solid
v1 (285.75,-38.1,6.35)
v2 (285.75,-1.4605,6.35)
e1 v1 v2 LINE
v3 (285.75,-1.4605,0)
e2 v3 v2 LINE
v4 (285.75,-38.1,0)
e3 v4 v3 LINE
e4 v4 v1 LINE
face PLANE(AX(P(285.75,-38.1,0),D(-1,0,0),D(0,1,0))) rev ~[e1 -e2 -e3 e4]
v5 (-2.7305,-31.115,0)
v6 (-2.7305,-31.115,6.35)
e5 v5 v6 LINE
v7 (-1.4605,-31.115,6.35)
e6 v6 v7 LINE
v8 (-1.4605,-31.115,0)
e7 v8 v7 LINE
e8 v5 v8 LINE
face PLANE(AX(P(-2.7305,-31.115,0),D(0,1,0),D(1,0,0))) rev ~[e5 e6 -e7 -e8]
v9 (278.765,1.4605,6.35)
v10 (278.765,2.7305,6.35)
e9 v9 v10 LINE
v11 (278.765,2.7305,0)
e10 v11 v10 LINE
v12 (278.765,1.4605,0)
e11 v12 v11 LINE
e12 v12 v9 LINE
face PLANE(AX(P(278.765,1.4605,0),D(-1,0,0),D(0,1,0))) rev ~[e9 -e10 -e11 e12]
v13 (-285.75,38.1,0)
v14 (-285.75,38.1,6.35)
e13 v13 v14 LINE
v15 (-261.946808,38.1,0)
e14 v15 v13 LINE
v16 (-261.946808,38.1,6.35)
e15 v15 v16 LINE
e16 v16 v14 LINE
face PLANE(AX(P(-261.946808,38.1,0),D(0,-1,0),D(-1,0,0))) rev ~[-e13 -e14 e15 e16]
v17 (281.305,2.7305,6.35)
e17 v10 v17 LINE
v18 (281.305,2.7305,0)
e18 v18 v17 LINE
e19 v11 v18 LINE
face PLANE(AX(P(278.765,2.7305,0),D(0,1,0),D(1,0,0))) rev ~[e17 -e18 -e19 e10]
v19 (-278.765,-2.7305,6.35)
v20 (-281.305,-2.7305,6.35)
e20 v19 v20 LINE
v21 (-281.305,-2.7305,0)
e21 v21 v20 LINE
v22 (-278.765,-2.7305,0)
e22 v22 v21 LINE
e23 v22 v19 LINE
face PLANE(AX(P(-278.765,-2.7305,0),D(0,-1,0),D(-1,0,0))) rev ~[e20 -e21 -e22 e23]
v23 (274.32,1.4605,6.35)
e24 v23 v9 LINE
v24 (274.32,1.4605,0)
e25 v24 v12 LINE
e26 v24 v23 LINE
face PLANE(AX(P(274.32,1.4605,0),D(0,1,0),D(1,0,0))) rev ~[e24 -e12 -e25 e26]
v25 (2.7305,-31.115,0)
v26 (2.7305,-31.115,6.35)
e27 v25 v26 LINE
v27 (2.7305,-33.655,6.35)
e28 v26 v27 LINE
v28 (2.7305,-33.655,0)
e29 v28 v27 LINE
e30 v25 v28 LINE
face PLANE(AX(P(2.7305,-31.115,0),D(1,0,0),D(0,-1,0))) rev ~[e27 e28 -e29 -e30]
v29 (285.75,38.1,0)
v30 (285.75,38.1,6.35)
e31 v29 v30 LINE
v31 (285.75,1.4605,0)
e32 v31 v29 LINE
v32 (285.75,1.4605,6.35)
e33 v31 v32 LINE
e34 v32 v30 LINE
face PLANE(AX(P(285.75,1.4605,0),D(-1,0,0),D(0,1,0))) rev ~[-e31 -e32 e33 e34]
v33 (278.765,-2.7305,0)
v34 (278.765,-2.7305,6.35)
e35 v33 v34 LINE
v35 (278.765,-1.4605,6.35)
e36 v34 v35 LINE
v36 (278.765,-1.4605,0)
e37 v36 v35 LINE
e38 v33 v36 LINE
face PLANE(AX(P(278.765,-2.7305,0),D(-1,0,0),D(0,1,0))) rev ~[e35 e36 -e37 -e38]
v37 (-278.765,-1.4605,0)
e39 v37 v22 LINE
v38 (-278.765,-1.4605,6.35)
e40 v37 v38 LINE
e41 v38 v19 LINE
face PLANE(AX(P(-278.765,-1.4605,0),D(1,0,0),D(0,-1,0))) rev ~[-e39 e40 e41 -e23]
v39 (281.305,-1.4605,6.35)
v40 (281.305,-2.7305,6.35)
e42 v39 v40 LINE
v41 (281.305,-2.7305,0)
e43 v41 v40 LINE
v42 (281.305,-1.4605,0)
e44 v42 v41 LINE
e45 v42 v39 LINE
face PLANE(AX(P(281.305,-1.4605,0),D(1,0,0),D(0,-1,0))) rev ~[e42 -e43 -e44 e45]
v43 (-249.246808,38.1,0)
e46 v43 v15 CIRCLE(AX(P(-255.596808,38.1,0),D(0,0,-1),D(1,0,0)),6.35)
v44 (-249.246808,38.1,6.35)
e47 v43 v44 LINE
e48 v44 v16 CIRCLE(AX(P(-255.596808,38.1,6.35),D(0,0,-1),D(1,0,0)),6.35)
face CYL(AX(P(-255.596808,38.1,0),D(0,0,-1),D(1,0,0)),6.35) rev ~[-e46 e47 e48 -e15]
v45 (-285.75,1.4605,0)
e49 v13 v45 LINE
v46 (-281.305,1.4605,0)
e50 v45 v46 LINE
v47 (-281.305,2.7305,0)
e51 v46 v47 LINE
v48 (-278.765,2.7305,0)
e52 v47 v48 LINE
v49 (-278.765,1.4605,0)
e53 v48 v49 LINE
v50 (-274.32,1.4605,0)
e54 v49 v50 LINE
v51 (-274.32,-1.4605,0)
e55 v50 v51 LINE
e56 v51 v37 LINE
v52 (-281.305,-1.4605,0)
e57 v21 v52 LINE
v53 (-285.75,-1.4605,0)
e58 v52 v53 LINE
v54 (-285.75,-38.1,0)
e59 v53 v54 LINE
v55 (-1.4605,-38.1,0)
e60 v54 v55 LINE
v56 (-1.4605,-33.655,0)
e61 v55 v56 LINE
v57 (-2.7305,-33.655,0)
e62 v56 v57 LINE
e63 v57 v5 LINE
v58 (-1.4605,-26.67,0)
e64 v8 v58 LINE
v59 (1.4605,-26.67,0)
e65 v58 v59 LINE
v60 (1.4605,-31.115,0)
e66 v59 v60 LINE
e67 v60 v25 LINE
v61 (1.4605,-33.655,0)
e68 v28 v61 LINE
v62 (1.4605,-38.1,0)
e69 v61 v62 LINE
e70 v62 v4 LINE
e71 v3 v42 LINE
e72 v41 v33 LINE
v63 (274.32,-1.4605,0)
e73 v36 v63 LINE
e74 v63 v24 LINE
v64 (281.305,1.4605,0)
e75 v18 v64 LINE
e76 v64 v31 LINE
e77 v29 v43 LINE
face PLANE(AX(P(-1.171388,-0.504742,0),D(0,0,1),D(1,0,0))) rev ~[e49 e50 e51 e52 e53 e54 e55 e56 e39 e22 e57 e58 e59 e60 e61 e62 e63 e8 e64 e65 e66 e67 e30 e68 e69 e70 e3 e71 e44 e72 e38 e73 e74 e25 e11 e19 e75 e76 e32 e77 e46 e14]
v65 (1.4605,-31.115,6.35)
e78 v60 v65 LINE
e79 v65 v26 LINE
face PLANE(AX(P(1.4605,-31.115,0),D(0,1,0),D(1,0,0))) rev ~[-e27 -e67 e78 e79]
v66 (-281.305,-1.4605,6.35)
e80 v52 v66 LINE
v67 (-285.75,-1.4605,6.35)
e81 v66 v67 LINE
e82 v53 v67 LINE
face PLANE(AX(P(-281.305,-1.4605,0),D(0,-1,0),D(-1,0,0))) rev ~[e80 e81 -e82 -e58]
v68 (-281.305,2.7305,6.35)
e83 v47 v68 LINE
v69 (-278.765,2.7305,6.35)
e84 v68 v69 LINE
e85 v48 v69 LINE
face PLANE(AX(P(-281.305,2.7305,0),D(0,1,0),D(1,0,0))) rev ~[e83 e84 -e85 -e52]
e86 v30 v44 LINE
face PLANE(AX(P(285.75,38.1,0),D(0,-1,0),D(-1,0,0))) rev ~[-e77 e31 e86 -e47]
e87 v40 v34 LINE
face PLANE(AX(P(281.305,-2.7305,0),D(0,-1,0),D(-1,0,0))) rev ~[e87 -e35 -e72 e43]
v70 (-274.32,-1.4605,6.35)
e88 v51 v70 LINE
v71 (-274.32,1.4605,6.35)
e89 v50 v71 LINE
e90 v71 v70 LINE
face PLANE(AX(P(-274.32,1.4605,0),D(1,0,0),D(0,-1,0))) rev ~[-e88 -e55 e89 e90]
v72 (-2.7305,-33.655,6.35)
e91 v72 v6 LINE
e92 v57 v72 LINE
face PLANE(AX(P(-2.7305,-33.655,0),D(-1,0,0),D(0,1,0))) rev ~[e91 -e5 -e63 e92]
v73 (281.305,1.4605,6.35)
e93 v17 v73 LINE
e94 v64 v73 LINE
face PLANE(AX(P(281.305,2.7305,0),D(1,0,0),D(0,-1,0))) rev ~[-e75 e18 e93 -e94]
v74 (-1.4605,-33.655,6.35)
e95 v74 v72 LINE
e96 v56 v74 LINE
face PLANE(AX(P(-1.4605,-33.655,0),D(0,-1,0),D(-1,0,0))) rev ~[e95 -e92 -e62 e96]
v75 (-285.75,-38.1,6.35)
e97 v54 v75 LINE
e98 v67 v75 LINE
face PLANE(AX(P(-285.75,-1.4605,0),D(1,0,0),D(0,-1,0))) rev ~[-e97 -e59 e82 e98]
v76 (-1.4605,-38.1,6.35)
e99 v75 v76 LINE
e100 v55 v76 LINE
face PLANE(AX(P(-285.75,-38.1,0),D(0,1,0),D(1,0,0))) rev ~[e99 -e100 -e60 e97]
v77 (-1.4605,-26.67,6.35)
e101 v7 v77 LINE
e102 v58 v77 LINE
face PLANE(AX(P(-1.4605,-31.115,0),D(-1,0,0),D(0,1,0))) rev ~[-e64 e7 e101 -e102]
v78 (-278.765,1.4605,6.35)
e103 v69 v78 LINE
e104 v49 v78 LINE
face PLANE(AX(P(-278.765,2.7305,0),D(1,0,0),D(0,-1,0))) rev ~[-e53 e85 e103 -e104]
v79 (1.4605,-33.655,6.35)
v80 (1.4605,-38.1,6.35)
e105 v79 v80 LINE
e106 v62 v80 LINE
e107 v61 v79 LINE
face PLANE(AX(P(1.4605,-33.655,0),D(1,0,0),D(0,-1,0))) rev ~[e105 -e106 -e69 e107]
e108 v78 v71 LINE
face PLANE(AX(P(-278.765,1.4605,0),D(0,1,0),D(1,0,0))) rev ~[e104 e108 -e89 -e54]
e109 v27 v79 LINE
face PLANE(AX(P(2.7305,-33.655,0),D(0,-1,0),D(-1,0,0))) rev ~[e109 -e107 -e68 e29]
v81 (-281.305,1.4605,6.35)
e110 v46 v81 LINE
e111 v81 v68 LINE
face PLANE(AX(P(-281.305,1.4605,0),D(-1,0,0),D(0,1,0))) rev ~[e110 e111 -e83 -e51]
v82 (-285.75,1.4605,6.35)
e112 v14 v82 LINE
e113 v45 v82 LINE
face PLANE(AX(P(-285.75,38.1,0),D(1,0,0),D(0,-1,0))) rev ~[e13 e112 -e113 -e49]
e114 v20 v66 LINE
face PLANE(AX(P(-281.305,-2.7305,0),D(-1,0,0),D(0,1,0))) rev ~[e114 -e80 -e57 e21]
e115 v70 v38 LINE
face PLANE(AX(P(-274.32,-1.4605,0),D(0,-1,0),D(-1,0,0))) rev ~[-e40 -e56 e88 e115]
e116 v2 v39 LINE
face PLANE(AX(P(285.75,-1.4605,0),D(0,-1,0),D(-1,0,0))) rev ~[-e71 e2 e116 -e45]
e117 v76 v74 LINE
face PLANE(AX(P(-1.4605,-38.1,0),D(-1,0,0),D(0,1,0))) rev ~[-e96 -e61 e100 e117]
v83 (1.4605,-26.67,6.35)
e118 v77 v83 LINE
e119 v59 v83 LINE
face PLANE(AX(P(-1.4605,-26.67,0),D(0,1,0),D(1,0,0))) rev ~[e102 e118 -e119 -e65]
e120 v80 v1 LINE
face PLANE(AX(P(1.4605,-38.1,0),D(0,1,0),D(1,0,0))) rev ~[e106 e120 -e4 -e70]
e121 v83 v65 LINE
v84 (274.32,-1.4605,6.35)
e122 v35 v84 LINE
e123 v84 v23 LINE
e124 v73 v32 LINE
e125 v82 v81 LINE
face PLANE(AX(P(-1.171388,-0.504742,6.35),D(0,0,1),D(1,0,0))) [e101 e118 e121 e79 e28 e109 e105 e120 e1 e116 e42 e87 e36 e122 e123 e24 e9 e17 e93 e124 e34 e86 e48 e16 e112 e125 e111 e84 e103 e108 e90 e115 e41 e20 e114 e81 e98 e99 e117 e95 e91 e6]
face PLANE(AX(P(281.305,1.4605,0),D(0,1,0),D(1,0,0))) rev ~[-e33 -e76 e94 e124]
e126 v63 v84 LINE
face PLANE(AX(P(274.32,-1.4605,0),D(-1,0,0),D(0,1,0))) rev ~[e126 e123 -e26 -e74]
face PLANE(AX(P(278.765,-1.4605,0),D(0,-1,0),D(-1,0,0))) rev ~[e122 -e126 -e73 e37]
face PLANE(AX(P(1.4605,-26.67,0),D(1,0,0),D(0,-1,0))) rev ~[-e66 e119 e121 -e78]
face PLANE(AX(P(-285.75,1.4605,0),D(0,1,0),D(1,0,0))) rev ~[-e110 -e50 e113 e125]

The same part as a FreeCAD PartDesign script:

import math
import FreeCAD as App
import Part
import Sketcher

V = App.Vector
Q = App.Units.Quantity

doc = App.newDocument("Part")
body = doc.addObject("PartDesign::Body", "Body")

# Sketch on XY plane
sketch1 = body.newObject("Sketcher::SketchObject", "Sketch")
sketch1.AttachmentSupport = (doc.getObject("XY_Plane"), [""])
sketch1.MapMode = "FlatFace"
sketch1.addGeometry([
    Part.LineSegment(V(1.4605, -38.1, 0), V(285.75, -38.1, 0)),  # 0
    Part.LineSegment(V(285.75, -38.1, 0), V(285.75, -1.4605, 0)),  # 1
    Part.LineSegment(V(285.75, -1.4605, 0), V(281.305, -1.4605, 0)),  # 2
    Part.LineSegment(V(281.305, -1.4605, 0), V(281.305, -2.7305, 0)),  # 3
    Part.LineSegment(V(281.305, -2.7305, 0), V(278.765, -2.7305, 0)),  # 4
    Part.LineSegment(V(278.765, -2.7305, 0), V(278.765, -1.4605, 0)),  # 5
    Part.LineSegment(V(278.765, -1.4605, 0), V(274.32, -1.4605, 0)),  # 6
    Part.LineSegment(V(274.32, -1.4605, 0), V(274.32, 1.4605, 0)),  # 7
    Part.LineSegment(V(274.32, 1.4605, 0), V(278.765, 1.4605, 0)),  # 8
    Part.LineSegment(V(278.765, 1.4605, 0), V(278.765, 2.7305, 0)),  # 9
    Part.LineSegment(V(278.765, 2.7305, 0), V(281.305, 2.7305, 0)),  # 10
    Part.LineSegment(V(281.305, 2.7305, 0), V(281.305, 1.4605, 0)),  # 11
    Part.LineSegment(V(281.305, 1.4605, 0), V(285.75, 1.4605, 0)),  # 12
    Part.LineSegment(V(285.75, 1.4605, 0), V(285.75, 38.1, 0)),  # 13
    Part.LineSegment(V(285.75, 38.1, 0), V(-249.246808, 38.1, 0)),  # 14
    Part.ArcOfCircle(Part.Circle(V(-255.596808, 38.1, 0), V(0, 0, 1), 6.35), math.radians(180), math.radians(360)),  # 15
    Part.LineSegment(V(-261.946808, 38.1, 0), V(-285.75, 38.1, 0)),  # 16
    Part.LineSegment(V(-285.75, 38.1, 0), V(-285.75, 1.4605, 0)),  # 17
    Part.LineSegment(V(-285.75, 1.4605, 0), V(-281.305, 1.4605, 0)),  # 18
    Part.LineSegment(V(-281.305, 1.4605, 0), V(-281.305, 2.7305, 0)),  # 19
    Part.LineSegment(V(-281.305, 2.7305, 0), V(-278.765, 2.7305, 0)),  # 20
    Part.LineSegment(V(-278.765, 2.7305, 0), V(-278.765, 1.4605, 0)),  # 21
    Part.LineSegment(V(-278.765, 1.4605, 0), V(-274.32, 1.4605, 0)),  # 22
    Part.LineSegment(V(-274.32, 1.4605, 0), V(-274.32, -1.4605, 0)),  # 23
    Part.LineSegment(V(-274.32, -1.4605, 0), V(-278.765, -1.4605, 0)),  # 24
    Part.LineSegment(V(-278.765, -1.4605, 0), V(-278.765, -2.7305, 0)),  # 25
    Part.LineSegment(V(-278.765, -2.7305, 0), V(-281.305, -2.7305, 0)),  # 26
    Part.LineSegment(V(-281.305, -2.7305, 0), V(-281.305, -1.4605, 0)),  # 27
    Part.LineSegment(V(-281.305, -1.4605, 0), V(-285.75, -1.4605, 0)),  # 28
    Part.LineSegment(V(-285.75, -1.4605, 0), V(-285.75, -38.1, 0)),  # 29
    Part.LineSegment(V(-285.75, -38.1, 0), V(-1.4605, -38.1, 0)),  # 30
    Part.LineSegment(V(-1.4605, -38.1, 0), V(-1.4605, -33.655, 0)),  # 31
    Part.LineSegment(V(-1.4605, -33.655, 0), V(-2.7305, -33.655, 0)),  # 32
    Part.LineSegment(V(-2.7305, -33.655, 0), V(-2.7305, -31.115, 0)),  # 33
    Part.LineSegment(V(-2.7305, -31.115, 0), V(-1.4605, -31.115, 0)),  # 34
    Part.LineSegment(V(-1.4605, -31.115, 0), V(-1.4605, -26.67, 0)),  # 35
    Part.LineSegment(V(-1.4605, -26.67, 0), V(1.4605, -26.67, 0)),  # 36
    Part.LineSegment(V(1.4605, -26.67, 0), V(1.4605, -31.115, 0)),  # 37
    Part.LineSegment(V(1.4605, -31.115, 0), V(2.7305, -31.115, 0)),  # 38
    Part.LineSegment(V(2.7305, -31.115, 0), V(2.7305, -33.655, 0)),  # 39
    Part.LineSegment(V(2.7305, -33.655, 0), V(1.4605, -33.655, 0)),  # 40
    Part.LineSegment(V(1.4605, -33.655, 0), V(1.4605, -38.1, 0)),  # 41
], False)
sketch1.addConstraint([
    Sketcher.Constraint("Coincident", 0, 2, 1, 1),
    Sketcher.Constraint("Coincident", 1, 2, 2, 1),
    Sketcher.Constraint("Coincident", 2, 2, 3, 1),
    Sketcher.Constraint("Coincident", 3, 2, 4, 1),
    Sketcher.Constraint("Coincident", 4, 2, 5, 1),
    Sketcher.Constraint("Coincident", 5, 2, 6, 1),
    Sketcher.Constraint("Coincident", 6, 2, 7, 1),
    Sketcher.Constraint("Coincident", 7, 2, 8, 1),
    Sketcher.Constraint("Coincident", 8, 2, 9, 1),
    Sketcher.Constraint("Coincident", 9, 2, 10, 1),
    Sketcher.Constraint("Coincident", 10, 2, 11, 1),
    Sketcher.Constraint("Coincident", 11, 2, 12, 1),
    Sketcher.Constraint("Coincident", 12, 2, 13, 1),
    Sketcher.Constraint("Coincident", 13, 2, 14, 1),
    Sketcher.Constraint("Coincident", 14, 2, 15, 2),
    Sketcher.Constraint("Coincident", 15, 1, 16, 1),
    Sketcher.Constraint("Coincident", 16, 2, 17, 1),
    Sketcher.Constraint("Coincident", 17, 2, 18, 1),
    Sketcher.Constraint("Coincident", 18, 2, 19, 1),
    Sketcher.Constraint("Coincident", 19, 2, 20, 1),
    Sketcher.Constraint("Coincident", 20, 2, 21, 1),
    Sketcher.Constraint("Coincident", 21, 2, 22, 1),
    Sketcher.Constraint("Coincident", 22, 2, 23, 1),
    Sketcher.Constraint("Coincident", 23, 2, 24, 1),
    Sketcher.Constraint("Coincident", 24, 2, 25, 1),
    Sketcher.Constraint("Coincident", 25, 2, 26, 1),
    Sketcher.Constraint("Coincident", 26, 2, 27, 1),
    Sketcher.Constraint("Coincident", 27, 2, 28, 1),
    Sketcher.Constraint("Coincident", 28, 2, 29, 1),
    Sketcher.Constraint("Coincident", 29, 2, 30, 1),
    Sketcher.Constraint("Coincident", 30, 2, 31, 1),
    Sketcher.Constraint("Coincident", 31, 2, 32, 1),
    Sketcher.Constraint("Coincident", 32, 2, 33, 1),
    Sketcher.Constraint("Coincident", 33, 2, 34, 1),
    Sketcher.Constraint("Coincident", 34, 2, 35, 1),
    Sketcher.Constraint("Coincident", 35, 2, 36, 1),
    Sketcher.Constraint("Coincident", 36, 2, 37, 1),
    Sketcher.Constraint("Coincident", 37, 2, 38, 1),
    Sketcher.Constraint("Coincident", 38, 2, 39, 1),
    Sketcher.Constraint("Coincident", 39, 2, 40, 1),
    Sketcher.Constraint("Coincident", 40, 2, 41, 1),
    Sketcher.Constraint("Coincident", 41, 2, 0, 1),
    Sketcher.Constraint("Horizontal", 0),
    Sketcher.Constraint("Vertical", 1),
    Sketcher.Constraint("Horizontal", 2),
    Sketcher.Constraint("Vertical", 3),
    Sketcher.Constraint("Horizontal", 4),
    Sketcher.Constraint("Vertical", 5),
    Sketcher.Constraint("Horizontal", 6),
    Sketcher.Constraint("Vertical", 7),
    Sketcher.Constraint("Horizontal", 8),
    Sketcher.Constraint("Vertical", 9),
    Sketcher.Constraint("Horizontal", 10),
    Sketcher.Constraint("Vertical", 11),
    Sketcher.Constraint("Horizontal", 12),
    Sketcher.Constraint("Vertical", 13),
    Sketcher.Constraint("Horizontal", 14),
    Sketcher.Constraint("Horizontal", 16),
    Sketcher.Constraint("Vertical", 17),
    Sketcher.Constraint("Horizontal", 18),
    Sketcher.Constraint("Vertical", 19),
    Sketcher.Constraint("Horizontal", 20),
    Sketcher.Constraint("Vertical", 21),
    Sketcher.Constraint("Horizontal", 22),
    Sketcher.Constraint("Vertical", 23),
    Sketcher.Constraint("Horizontal", 24),
    Sketcher.Constraint("Vertical", 25),
    Sketcher.Constraint("Horizontal", 26),
    Sketcher.Constraint("Vertical", 27),
    Sketcher.Constraint("Horizontal", 28),
    Sketcher.Constraint("Vertical", 29),
    Sketcher.Constraint("Horizontal", 30),
    Sketcher.Constraint("Vertical", 31),
    Sketcher.Constraint("Horizontal", 32),
    Sketcher.Constraint("Vertical", 33),
    Sketcher.Constraint("Horizontal", 34),
    Sketcher.Constraint("Vertical", 35),
    Sketcher.Constraint("Horizontal", 36),
    Sketcher.Constraint("Vertical", 37),
    Sketcher.Constraint("Horizontal", 38),
    Sketcher.Constraint("Vertical", 39),
    Sketcher.Constraint("Horizontal", 40),
    Sketcher.Constraint("Vertical", 41),
    Sketcher.Constraint("Symmetric", 0, 2, 16, 2, -1, 1),
    Sketcher.Constraint("Symmetric", 2, 2, 18, 2, -1, 1),
    Sketcher.Constraint("Symmetric", 4, 2, 20, 2, -1, 1),
    Sketcher.Constraint("Symmetric", 6, 2, 22, 2, -1, 1),
    Sketcher.Constraint("Symmetric", 8, 2, 24, 2, -1, 1),
    Sketcher.Constraint("Symmetric", 10, 2, 26, 2, -1, 1),
    Sketcher.Constraint("Symmetric", 12, 2, 28, 2, -1, 1),
    Sketcher.Constraint("Symmetric", 13, 2, 16, 2, -2),
    Sketcher.Constraint("Symmetric", 11, 2, 18, 2, -2),
    Sketcher.Constraint("Symmetric", 9, 2, 20, 2, -2),
    Sketcher.Constraint("Symmetric", 34, 2, 37, 2, -2),
    Sketcher.Constraint("Symmetric", 32, 2, 39, 2, -2),
    Sketcher.Constraint("Symmetric", 30, 2, 41, 2, -2),
    Sketcher.Constraint("Horizontal", 2, 2, 5, 2),
    Sketcher.Constraint("Horizontal", 8, 2, 11, 2),
    Sketcher.Constraint("Horizontal", 15, 3, 13, 2),
    Sketcher.Constraint("Vertical", 31, 2, 34, 2),
    Sketcher.Constraint("Equal", 2, 6),
    Sketcher.Constraint("Equal", 40, 3),
    Sketcher.Constraint("Equal", 36, 7),
    Sketcher.Constraint("Equal", 28, 31),
    Sketcher.Constraint("Equal", 26, 33),
    Sketcher.Constraint("Equal", 31, 35),
    Sketcher.Constraint("Radius", 15, Q("0.25 in")),
    Sketcher.Constraint("DistanceX", 4, 2, 4, 1, Q("0.1 in")),
    Sketcher.Constraint("DistanceY", 0, 2, 15, 3, Q("3 in")),
    Sketcher.Constraint("DistanceX", 32, 2, 32, 1, Q("0.05 in")),
    Sketcher.Constraint("DistanceX", -1, 1, 6, 2, Q("10.8 in")),
    Sketcher.Constraint("DistanceX", 2, 2, 2, 1, Q("0.175 in")),
    Sketcher.Constraint("DistanceX", 36, 1, 36, 2, Q("0.115 in")),
    Sketcher.Constraint("DistanceX", 14, 2, 14, 1, 534.996808),
])
pad1 = body.newObject("PartDesign::Pad", "Pad")
pad1.Profile = sketch1
pad1.Length = Q("0.25 in")

doc.recompute()
